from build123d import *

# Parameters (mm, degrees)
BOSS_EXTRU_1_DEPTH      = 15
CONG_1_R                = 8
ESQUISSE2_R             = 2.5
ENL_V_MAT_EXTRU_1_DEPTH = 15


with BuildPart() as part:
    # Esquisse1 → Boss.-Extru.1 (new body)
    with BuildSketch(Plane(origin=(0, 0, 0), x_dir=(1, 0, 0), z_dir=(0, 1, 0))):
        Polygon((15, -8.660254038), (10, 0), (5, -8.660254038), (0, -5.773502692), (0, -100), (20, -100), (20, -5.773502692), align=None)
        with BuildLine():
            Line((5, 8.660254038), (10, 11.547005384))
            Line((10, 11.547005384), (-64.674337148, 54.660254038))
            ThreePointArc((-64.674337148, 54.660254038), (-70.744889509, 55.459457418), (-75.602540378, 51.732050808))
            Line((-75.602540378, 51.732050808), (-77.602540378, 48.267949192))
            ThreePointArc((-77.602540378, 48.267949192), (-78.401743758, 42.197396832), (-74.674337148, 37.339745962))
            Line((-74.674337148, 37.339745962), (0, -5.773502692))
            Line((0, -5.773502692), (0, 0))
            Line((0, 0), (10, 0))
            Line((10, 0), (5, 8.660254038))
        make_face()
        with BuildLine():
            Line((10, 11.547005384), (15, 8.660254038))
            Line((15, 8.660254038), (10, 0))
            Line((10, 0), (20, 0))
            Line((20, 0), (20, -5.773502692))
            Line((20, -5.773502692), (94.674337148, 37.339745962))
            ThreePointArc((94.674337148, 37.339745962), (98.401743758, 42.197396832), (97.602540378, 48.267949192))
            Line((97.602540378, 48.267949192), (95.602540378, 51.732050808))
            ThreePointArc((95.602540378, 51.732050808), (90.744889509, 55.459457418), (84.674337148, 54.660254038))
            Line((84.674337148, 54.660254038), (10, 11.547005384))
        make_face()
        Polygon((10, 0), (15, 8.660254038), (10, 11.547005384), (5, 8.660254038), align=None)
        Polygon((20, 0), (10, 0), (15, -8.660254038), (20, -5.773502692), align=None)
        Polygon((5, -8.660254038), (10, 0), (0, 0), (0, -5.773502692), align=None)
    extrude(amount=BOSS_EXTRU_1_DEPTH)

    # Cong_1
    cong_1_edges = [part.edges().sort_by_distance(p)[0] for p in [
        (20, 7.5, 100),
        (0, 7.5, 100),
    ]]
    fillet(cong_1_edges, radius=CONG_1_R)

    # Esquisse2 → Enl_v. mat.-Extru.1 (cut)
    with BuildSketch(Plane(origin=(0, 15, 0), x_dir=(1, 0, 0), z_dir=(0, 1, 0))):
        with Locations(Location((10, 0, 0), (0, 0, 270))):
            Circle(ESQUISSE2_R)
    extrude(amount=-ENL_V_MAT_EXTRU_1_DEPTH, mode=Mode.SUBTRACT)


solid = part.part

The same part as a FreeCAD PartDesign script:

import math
import FreeCAD as App
import Part
import Sketcher
Q = App.Units.Quantity


def edges_at(feature, points):
    """Names of the edges that pass closest to the given points."""
    edges = feature.Shape.Edges
    near = lambda p: min(range(len(edges)), key=lambda i: edges[i].distToShape(Part.Vertex(*p))[0])
    return sorted({f"Edge{near(p) + 1}" for p in points})

doc = App.newDocument("Part")
body = doc.addObject("PartDesign::Body", "Body")

# Sketch on XZ plane
sketch1 = body.newObject("Sketcher::SketchObject", "Sketch")
sketch1.AttachmentSupport = (doc.getObject("XZ_Plane"), [""])
sketch1.MapMode = "FlatFace"
sketch1.addGeometry([
    Part.LineSegment(App.Vector(-74.7, -37.3, 0), App.Vector(0, 5.8, 0)),  # 0
    Part.LineSegment(App.Vector(0, 5.8, 0), App.Vector(0, 100, 0)),  # 1
    Part.LineSegment(App.Vector(0, 100, 0), App.Vector(20, 100, 0)),  # 2
    Part.LineSegment(App.Vector(20, 100, 0), App.Vector(20, 5.8, 0)),  # 3
    Part.LineSegment(App.Vector(20, 5.8, 0), App.Vector(94.7, -37.3, 0)),  # 4
    Part.ArcOfCircle(Part.Circle(App.Vector(90.7, -44.3, 0), App.Vector(0, 0, 1), 8), math.radians(-30), math.radians(60)),  # 5
    Part.LineSegment(App.Vector(97.6, -48.3, 0), App.Vector(95.6, -51.7, 0)),  # 6
    Part.ArcOfCircle(Part.Circle(App.Vector(88.7, -47.7, 0), App.Vector(0, 0, 1), 8), math.radians(-120), math.radians(-30)),  # 7
    Part.LineSegment(App.Vector(84.7, -54.7, 0), App.Vector(10, -11.5, 0)),  # 8
    Part.LineSegment(App.Vector(10, -11.5, 0), App.Vector(-64.7, -54.7, 0)),  # 9
    Part.ArcOfCircle(Part.Circle(App.Vector(-68.7, -47.7, 0), App.Vector(0, 0, 1), 8), math.radians(-150), math.radians(-60)),  # 10
    Part.LineSegment(App.Vector(-75.6, -51.7, 0), App.Vector(-77.6, -48.3, 0)),  # 11
    Part.ArcOfCircle(Part.Circle(App.Vector(-70.7, -44.3, 0), App.Vector(0, 0, 1), 8), math.radians(120), math.radians(210)),  # 12
], False)
sketch1.addConstraint([
    Sketcher.Constraint("Coincident", 0, 2, 1, 1),
    Sketcher.Constraint("Coincident", 1, 2, 2, 1),
    Sketcher.Constraint("Coincident", 2, 2, 3, 1),
    Sketcher.Constraint("Coincident", 3, 2, 4, 1),
    Sketcher.Constraint("Tangent", 4, 2, 5, 2),
    Sketcher.Constraint("Tangent", 5, 1, 6, 1),
    Sketcher.Constraint("Tangent", 6, 2, 7, 2),
    Sketcher.Constraint("Tangent", 7, 1, 8, 1),
    Sketcher.Constraint("Coincident", 8, 2, 9, 1),
    Sketcher.Constraint("Tangent", 9, 2, 10, 2),
    Sketcher.Constraint("Tangent", 10, 1, 11, 1),
    Sketcher.Constraint("Tangent", 11, 2, 12, 2),
    Sketcher.Constraint("Tangent", 12, 1, 0, 1),
    Sketcher.Constraint("Vertical", 1),
    Sketcher.Constraint("Horizontal", 2),
    Sketcher.Constraint("Vertical", 3),
    Sketcher.Constraint("Equal", 5, 7),
    Sketcher.Constraint("Equal", 7, 10),
    Sketcher.Constraint("Equal", 10, 12),
    Sketcher.Constraint("PointOnObject", 0, 2, -2),
    Sketcher.Constraint("Perpendicular", 4, 6),
    Sketcher.Constraint("Perpendicular", 6, 8),
    Sketcher.Constraint("Parallel", 0, 9),
    Sketcher.Constraint("Perpendicular", 9, 11),
    Sketcher.Constraint("Horizontal", 7, 3, 10, 3),
    Sketcher.Constraint("Horizontal", 5, 3, 12, 3),
    Sketcher.Constraint("Horizontal", 0, 2, 3, 2),
    Sketcher.Constraint("Horizontal", 7, 1, 9, 2),
    Sketcher.Constraint("Equal", 4, 8),
    Sketcher.Constraint("Radius", 5, 8.0),
    Sketcher.Constraint("DistanceX", 2, 1, 2, 2, 20.0),
    Sketcher.Constraint("Angle", 0, Q("30 deg")),
    Sketcher.Constraint("DistanceY", -1, 1, 1, 2, 100.0),
    Sketcher.Constraint("DistanceY", 1, 1, 1, 2, 94.226497),
    Sketcher.Constraint("DistanceY", 5, 3, -1, 1, 44.267949),
])
pad1 = body.newObject("PartDesign::Pad", "Pad")
pad1.Profile = sketch1
pad1.Length = 15
pad1.Reversed = True
doc.recompute()

fillet = body.newObject("PartDesign::Fillet", "Fillet")
fillet.Base = (pad1, edges_at(pad1, [(20, 7.5, 100), (0, 7.5, 100)]))
fillet.Radius = 8

# Sketch on XZ plane
sketch2 = body.newObject("Sketcher::SketchObject", "Sketch001")
sketch2.AttachmentSupport = (doc.getObject("XZ_Plane"), [""])
sketch2.MapMode = "FlatFace"
sketch2.AttachmentOffset = App.Placement(App.Vector(0, 0, -15), App.Rotation())
sketch2.addGeometry(Part.Circle(App.Vector(10, 0, 0), App.Vector(0, 0, 1), 2.5), False)
sketch2.addConstraint([
    Sketcher.Constraint("PointOnObject", 0, 3, -1),
    Sketcher.Constraint("Diameter", 0, 5.0),
    Sketcher.Constraint("DistanceX", -1, 1, 0, 3, 10.0),
])
pocket1 = body.newObject("PartDesign::Pocket", "Pocket")
pocket1.Profile = sketch2
pocket1.Length = 15
pocket1.Reversed = True

doc.recompute()
